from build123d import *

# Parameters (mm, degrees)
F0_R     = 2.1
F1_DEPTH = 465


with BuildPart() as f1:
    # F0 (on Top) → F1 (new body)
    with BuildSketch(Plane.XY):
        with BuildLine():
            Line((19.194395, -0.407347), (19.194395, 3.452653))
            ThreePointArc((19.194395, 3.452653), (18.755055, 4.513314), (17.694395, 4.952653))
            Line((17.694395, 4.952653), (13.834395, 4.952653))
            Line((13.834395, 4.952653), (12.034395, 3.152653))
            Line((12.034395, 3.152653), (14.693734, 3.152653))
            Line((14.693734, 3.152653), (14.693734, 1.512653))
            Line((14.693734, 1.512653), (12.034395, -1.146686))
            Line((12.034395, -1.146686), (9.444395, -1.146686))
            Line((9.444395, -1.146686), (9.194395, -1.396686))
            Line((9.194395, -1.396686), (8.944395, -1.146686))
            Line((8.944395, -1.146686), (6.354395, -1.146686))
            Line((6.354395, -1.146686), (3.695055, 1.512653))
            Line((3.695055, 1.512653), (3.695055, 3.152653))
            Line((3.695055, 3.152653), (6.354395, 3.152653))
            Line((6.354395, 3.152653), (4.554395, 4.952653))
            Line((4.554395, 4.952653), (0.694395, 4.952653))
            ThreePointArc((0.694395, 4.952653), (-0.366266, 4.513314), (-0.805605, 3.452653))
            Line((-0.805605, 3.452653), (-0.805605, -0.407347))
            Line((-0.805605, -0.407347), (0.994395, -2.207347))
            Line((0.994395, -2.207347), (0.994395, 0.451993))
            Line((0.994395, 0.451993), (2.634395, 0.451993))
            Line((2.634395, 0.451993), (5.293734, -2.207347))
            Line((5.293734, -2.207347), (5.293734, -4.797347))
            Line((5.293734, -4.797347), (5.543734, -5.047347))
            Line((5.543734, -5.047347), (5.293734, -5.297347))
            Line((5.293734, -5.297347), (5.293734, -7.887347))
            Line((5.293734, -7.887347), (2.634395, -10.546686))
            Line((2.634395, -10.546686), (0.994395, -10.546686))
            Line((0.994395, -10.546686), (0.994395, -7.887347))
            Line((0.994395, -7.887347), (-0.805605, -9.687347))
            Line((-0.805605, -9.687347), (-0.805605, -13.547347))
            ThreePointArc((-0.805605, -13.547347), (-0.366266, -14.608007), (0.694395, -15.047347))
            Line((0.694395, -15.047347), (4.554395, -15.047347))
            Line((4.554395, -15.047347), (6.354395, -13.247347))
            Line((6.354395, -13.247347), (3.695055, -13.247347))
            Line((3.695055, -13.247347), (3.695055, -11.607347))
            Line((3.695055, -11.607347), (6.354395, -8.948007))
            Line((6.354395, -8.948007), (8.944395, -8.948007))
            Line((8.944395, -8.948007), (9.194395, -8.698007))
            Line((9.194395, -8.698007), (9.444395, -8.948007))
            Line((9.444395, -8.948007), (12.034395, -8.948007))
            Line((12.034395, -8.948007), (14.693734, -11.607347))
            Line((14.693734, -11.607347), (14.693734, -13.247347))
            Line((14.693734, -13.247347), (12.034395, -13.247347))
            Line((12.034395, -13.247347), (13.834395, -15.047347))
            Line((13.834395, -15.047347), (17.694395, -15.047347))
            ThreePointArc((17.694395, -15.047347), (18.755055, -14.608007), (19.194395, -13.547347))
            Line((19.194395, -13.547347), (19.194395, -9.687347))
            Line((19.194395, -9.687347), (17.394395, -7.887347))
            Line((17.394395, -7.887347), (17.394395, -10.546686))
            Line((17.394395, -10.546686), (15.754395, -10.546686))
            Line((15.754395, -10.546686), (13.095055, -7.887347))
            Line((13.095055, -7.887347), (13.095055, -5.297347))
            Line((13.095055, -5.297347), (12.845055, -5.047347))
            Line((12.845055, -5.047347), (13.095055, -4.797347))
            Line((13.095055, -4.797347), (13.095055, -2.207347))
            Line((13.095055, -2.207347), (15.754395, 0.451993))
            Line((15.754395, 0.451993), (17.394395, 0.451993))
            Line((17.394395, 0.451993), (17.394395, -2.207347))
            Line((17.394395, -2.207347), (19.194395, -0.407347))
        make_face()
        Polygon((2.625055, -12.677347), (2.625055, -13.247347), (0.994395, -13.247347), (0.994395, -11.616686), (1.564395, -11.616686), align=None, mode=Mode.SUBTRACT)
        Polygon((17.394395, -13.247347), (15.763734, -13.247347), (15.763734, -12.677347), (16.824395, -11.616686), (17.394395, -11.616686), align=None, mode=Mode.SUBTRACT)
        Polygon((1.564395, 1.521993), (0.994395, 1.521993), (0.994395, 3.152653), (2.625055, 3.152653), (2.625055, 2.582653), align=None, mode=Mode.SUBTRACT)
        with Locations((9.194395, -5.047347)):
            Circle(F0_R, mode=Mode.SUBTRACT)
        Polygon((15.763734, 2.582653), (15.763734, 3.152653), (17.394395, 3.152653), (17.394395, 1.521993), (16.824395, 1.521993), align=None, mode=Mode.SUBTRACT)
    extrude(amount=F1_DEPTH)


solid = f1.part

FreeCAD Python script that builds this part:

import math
import FreeCAD as App
import Part
import Sketcher

V = App.Vector
Q = App.Units.Quantity


def add_polygon(sketch, points):
    """Adds a closed chain of lines whose ends are joined by coincident constraints."""
    first, n = sketch.GeometryCount, len(points)
    for a, b in zip(points, points[1:] + points[:1]):
        sketch.addGeometry(Part.LineSegment(App.Vector(*a, 0), App.Vector(*b, 0)), False)
    for i in range(n):
        sketch.addConstraint(Sketcher.Constraint("Coincident", first + i, 2, first + (i + 1) % n, 1))

doc = App.newDocument("Part")
body = doc.addObject("PartDesign::Body", "Body")

# Sketch on XY plane
sketch1 = doc.addObject("Sketcher::SketchObject", "Sketch")
body.addObject(sketch1)
sketch1.AttachmentSupport = (doc.XY_Plane, [""])
sketch1.MapMode = "FlatFace"
sketch1.addGeometry(Part.LineSegment(V(19.19, -0.41, 0), V(19.19, 3.45, 0)), False)  # 0
sketch1.addGeometry(Part.ArcOfCircle(Part.Circle(V(17.69, 3.45, 0), V(0, 0, 1), 1.5), math.radians(0), math.radians(90)), False)  # 1
sketch1.addGeometry(Part.LineSegment(V(17.69, 4.95, 0), V(13.83, 4.95, 0)), False)  # 2
sketch1.addGeometry(Part.LineSegment(V(13.83, 4.95, 0), V(12.03, 3.15, 0)), False)  # 3
sketch1.addGeometry(Part.LineSegment(V(12.03, 3.15, 0), V(14.69, 3.15, 0)), False)  # 4
sketch1.addGeometry(Part.LineSegment(V(14.69, 3.15, 0), V(14.69, 1.51, 0)), False)  # 5
sketch1.addGeometry(Part.LineSegment(V(14.69, 1.51, 0), V(12.03, -1.15, 0)), False)  # 6
sketch1.addGeometry(Part.LineSegment(V(12.03, -1.15, 0), V(9.44, -1.15, 0)), False)  # 7
sketch1.addGeometry(Part.LineSegment(V(9.44, -1.15, 0), V(9.19, -1.4, 0)), False)  # 8
sketch1.addGeometry(Part.LineSegment(V(9.19, -1.4, 0), V(8.94, -1.15, 0)), False)  # 9
sketch1.addGeometry(Part.LineSegment(V(8.94, -1.15, 0), V(6.35, -1.15, 0)), False)  # 10
sketch1.addGeometry(Part.LineSegment(V(6.35, -1.15, 0), V(3.7, 1.51, 0)), False)  # 11
sketch1.addGeometry(Part.LineSegment(V(3.7, 1.51, 0), V(3.7, 3.15, 0)), False)  # 12
sketch1.addGeometry(Part.LineSegment(V(3.7, 3.15, 0), V(6.35, 3.15, 0)), False)  # 13
sketch1.addGeometry(Part.LineSegment(V(6.35, 3.15, 0), V(4.55, 4.95, 0)), False)  # 14
sketch1.addGeometry(Part.LineSegment(V(4.55, 4.95, 0), V(0.69, 4.95, 0)), False)  # 15
sketch1.addGeometry(Part.ArcOfCircle(Part.Circle(V(0.69, 3.45, 0), V(0, 0, 1), 1.5), math.radians(90), math.radians(180)), False)  # 16
sketch1.addGeometry(Part.LineSegment(V(-0.81, 3.45, 0), V(-0.81, -0.41, 0)), False)  # 17
sketch1.addGeometry(Part.LineSegment(V(-0.81, -0.41, 0), V(0.99, -2.21, 0)), False)  # 18
sketch1.addGeometry(Part.LineSegment(V(0.99, -2.21, 0), V(0.99, 0.45, 0)), False)  # 19
sketch1.addGeometry(Part.LineSegment(V(0.99, 0.45, 0), V(2.63, 0.45, 0)), False)  # 20
sketch1.addGeometry(Part.LineSegment(V(2.63, 0.45, 0), V(5.29, -2.21, 0)), False)  # 21
sketch1.addGeometry(Part.LineSegment(V(5.29, -2.21, 0), V(5.29, -4.8, 0)), False)  # 22
sketch1.addGeometry(Part.LineSegment(V(5.29, -4.8, 0), V(5.54, -5.05, 0)), False)  # 23
sketch1.addGeometry(Part.LineSegment(V(5.54, -5.05, 0), V(5.29, -5.3, 0)), False)  # 24
sketch1.addGeometry(Part.LineSegment(V(5.29, -5.3, 0), V(5.29, -7.89, 0)), False)  # 25
sketch1.addGeometry(Part.LineSegment(V(5.29, -7.89, 0), V(2.63, -10.55, 0)), False)  # 26
sketch1.addGeometry(Part.LineSegment(V(2.63, -10.55, 0), V(0.99, -10.55, 0)), False)  # 27
sketch1.addGeometry(Part.LineSegment(V(0.99, -10.55, 0), V(0.99, -7.89, 0)), False)  # 28
sketch1.addGeometry(Part.LineSegment(V(0.99, -7.89, 0), V(-0.81, -9.69, 0)), False)  # 29
sketch1.addGeometry(Part.LineSegment(V(-0.81, -9.69, 0), V(-0.81, -13.55, 0)), False)  # 30
sketch1.addGeometry(Part.ArcOfCircle(Part.Circle(V(0.69, -13.55, 0), V(0, 0, 1), 1.5), math.radians(180), math.radians(270)), False)  # 31
sketch1.addGeometry(Part.LineSegment(V(0.69, -15.05, 0), V(4.55, -15.05, 0)), False)  # 32
sketch1.addGeometry(Part.LineSegment(V(4.55, -15.05, 0), V(6.35, -13.25, 0)), False)  # 33
sketch1.addGeometry(Part.LineSegment(V(6.35, -13.25, 0), V(3.7, -13.25, 0)), False)  # 34
sketch1.addGeometry(Part.LineSegment(V(3.7, -13.25, 0), V(3.7, -11.61, 0)), False)  # 35
sketch1.addGeometry(Part.LineSegment(V(3.7, -11.61, 0), V(6.35, -8.95, 0)), False)  # 36
sketch1.addGeometry(Part.LineSegment(V(6.35, -8.95, 0), V(8.94, -8.95, 0)), False)  # 37
sketch1.addGeometry(Part.LineSegment(V(8.94, -8.95, 0), V(9.19, -8.7, 0)), False)  # 38
sketch1.addGeometry(Part.LineSegment(V(9.19, -8.7, 0), V(9.44, -8.95, 0)), False)  # 39
sketch1.addGeometry(Part.LineSegment(V(9.44, -8.95, 0), V(12.03, -8.95, 0)), False)  # 40
sketch1.addGeometry(Part.LineSegment(V(12.03, -8.95, 0), V(14.69, -11.61, 0)), False)  # 41
sketch1.addGeometry(Part.LineSegment(V(14.69, -11.61, 0), V(14.69, -13.25, 0)), False)  # 42
sketch1.addGeometry(Part.LineSegment(V(14.69, -13.25, 0), V(12.03, -13.25, 0)), False)  # 43
sketch1.addGeometry(Part.LineSegment(V(12.03, -13.25, 0), V(13.83, -15.05, 0)), False)  # 44
sketch1.addGeometry(Part.LineSegment(V(13.83, -15.05, 0), V(17.69, -15.05, 0)), False)  # 45
sketch1.addGeometry(Part.ArcOfCircle(Part.Circle(V(17.69, -13.55, 0), V(0, 0, 1), 1.5), math.radians(-90), math.radians(0)), False)  # 46
sketch1.addGeometry(Part.LineSegment(V(19.19, -13.55, 0), V(19.19, -9.69, 0)), False)  # 47
sketch1.addGeometry(Part.LineSegment(V(19.19, -9.69, 0), V(17.39, -7.89, 0)), False)  # 48
sketch1.addGeometry(Part.LineSegment(V(17.39, -7.89, 0), V(17.39, -10.55, 0)), False)  # 49
sketch1.addGeometry(Part.LineSegment(V(17.39, -10.55, 0), V(15.75, -10.55, 0)), False)  # 50
sketch1.addGeometry(Part.LineSegment(V(15.75, -10.55, 0), V(13.1, -7.89, 0)), False)  # 51
sketch1.addGeometry(Part.LineSegment(V(13.1, -7.89, 0), V(13.1, -5.3, 0)), False)  # 52
sketch1.addGeometry(Part.LineSegment(V(13.1, -5.3, 0), V(12.85, -5.05, 0)), False)  # 53
sketch1.addGeometry(Part.LineSegment(V(12.85, -5.05, 0), V(13.1, -4.8, 0)), False)  # 54
sketch1.addGeometry(Part.LineSegment(V(13.1, -4.8, 0), V(13.1, -2.21, 0)), False)  # 55
sketch1.addGeometry(Part.LineSegment(V(13.1, -2.21, 0), V(15.75, 0.45, 0)), False)  # 56
sketch1.addGeometry(Part.LineSegment(V(15.75, 0.45, 0), V(17.39, 0.45, 0)), False)  # 57
sketch1.addGeometry(Part.LineSegment(V(17.39, 0.45, 0), V(17.39, -2.21, 0)), False)  # 58
sketch1.addGeometry(Part.LineSegment(V(17.39, -2.21, 0), V(19.19, -0.41, 0)), False)  # 59
add_polygon(sketch1, [(1.56, -11.62), (2.63, -12.68), (2.63, -13.25), (0.99, -13.25), (0.99, -11.62)])  # lines 60-64
add_polygon(sketch1, [(17.39, -11.62), (17.39, -13.25), (15.76, -13.25), (15.76, -12.68), (16.82, -11.62)])  # lines 65-69
add_polygon(sketch1, [(2.63, 2.58), (1.56, 1.52), (0.99, 1.52), (0.99, 3.15), (2.63, 3.15)])  # lines 70-74
sketch1.addGeometry(Part.Circle(V(9.19, -5.05, 0), V(0, 0, 1), 2.1), False)  # 75
add_polygon(sketch1, [(16.82, 1.52), (15.76, 2.58), (15.76, 3.15), (17.39, 3.15), (17.39, 1.52)])  # lines 76-80
sketch1.addConstraint(Sketcher.Constraint("Tangent", 0, 2, 1, 1))
sketch1.addConstraint(Sketcher.Constraint("Tangent", 1, 2, 2, 1))
sketch1.addConstraint(Sketcher.Constraint("Coincident", 2, 2, 3, 1))
sketch1.addConstraint(Sketcher.Constraint("Coincident", 3, 2, 4, 1))
sketch1.addConstraint(Sketcher.Constraint("Coincident", 4, 2, 5, 1))
sketch1.addConstraint(Sketcher.Constraint("Coincident", 5, 2, 6, 1))
sketch1.addConstraint(Sketcher.Constraint("Coincident", 6, 2, 7, 1))
sketch1.addConstraint(Sketcher.Constraint("Coincident", 7, 2, 8, 1))
sketch1.addConstraint(Sketcher.Constraint("Coincident", 8, 2, 9, 1))
sketch1.addConstraint(Sketcher.Constraint("Coincident", 9, 2, 10, 1))
sketch1.addConstraint(Sketcher.Constraint("Coincident", 10, 2, 11, 1))
sketch1.addConstraint(Sketcher.Constraint("Coincident", 11, 2, 12, 1))
sketch1.addConstraint(Sketcher.Constraint("Coincident", 12, 2, 13, 1))
sketch1.addConstraint(Sketcher.Constraint("Coincident", 13, 2, 14, 1))
sketch1.addConstraint(Sketcher.Constraint("Coincident", 14, 2, 15, 1))
sketch1.addConstraint(Sketcher.Constraint("Tangent", 15, 2, 16, 1))
sketch1.addConstraint(Sketcher.Constraint("Tangent", 16, 2, 17, 1))
sketch1.addConstraint(Sketcher.Constraint("Coincident", 17, 2, 18, 1))
sketch1.addConstraint(Sketcher.Constraint("Coincident", 18, 2, 19, 1))
sketch1.addConstraint(Sketcher.Constraint("Coincident", 19, 2, 20, 1))
sketch1.addConstraint(Sketcher.Constraint("Coincident", 20, 2, 21, 1))
sketch1.addConstraint(Sketcher.Constraint("Coincident", 21, 2, 22, 1))
sketch1.addConstraint(Sketcher.Constraint("Coincident", 22, 2, 23, 1))
sketch1.addConstraint(Sketcher.Constraint("Coincident", 23, 2, 24, 1))
sketch1.addConstraint(Sketcher.Constraint("Coincident", 24, 2, 25, 1))
sketch1.addConstraint(Sketcher.Constraint("Coincident", 25, 2, 26, 1))
sketch1.addConstraint(Sketcher.Constraint("Coincident", 26, 2, 27, 1))
sketch1.addConstraint(Sketcher.Constraint("Coincident", 27, 2, 28, 1))
sketch1.addConstraint(Sketcher.Constraint("Coincident", 28, 2, 29, 1))
sketch1.addConstraint(Sketcher.Constraint("Coincident", 29, 2, 30, 1))
sketch1.addConstraint(Sketcher.Constraint("Tangent", 30, 2, 31, 1))
sketch1.addConstraint(Sketcher.Constraint("Tangent", 31, 2, 32, 1))
sketch1.addConstraint(Sketcher.Constraint("Coincident", 32, 2, 33, 1))
sketch1.addConstraint(Sketcher.Constraint("Coincident", 33, 2, 34, 1))
sketch1.addConstraint(Sketcher.Constraint("Coincident", 34, 2, 35, 1))
sketch1.addConstraint(Sketcher.Constraint("Coincident", 35, 2, 36, 1))
sketch1.addConstraint(Sketcher.Constraint("Coincident", 36, 2, 37, 1))
sketch1.addConstraint(Sketcher.Constraint("Coincident", 37, 2, 38, 1))
sketch1.addConstraint(Sketcher.Constraint("Coincident", 38, 2, 39, 1))
sketch1.addConstraint(Sketcher.Constraint("Coincident", 39, 2, 40, 1))
sketch1.addConstraint(Sketcher.Constraint("Coincident", 40, 2, 41, 1))
sketch1.addConstraint(Sketcher.Constraint("Coincident", 41, 2, 42, 1))
sketch1.addConstraint(Sketcher.Constraint("Coincident", 42, 2, 43, 1))
sketch1.addConstraint(Sketcher.Constraint("Coincident", 43, 2, 44, 1))
sketch1.addConstraint(Sketcher.Constraint("Coincident", 44, 2, 45, 1))
sketch1.addConstraint(Sketcher.Constraint("Tangent", 45, 2, 46, 1))
sketch1.addConstraint(Sketcher.Constraint("Tangent", 46, 2, 47, 1))
sketch1.addConstraint(Sketcher.Constraint("Coincident", 47, 2, 48, 1))
sketch1.addConstraint(Sketcher.Constraint("Coincident", 48, 2, 49, 1))
sketch1.addConstraint(Sketcher.Constraint("Coincident", 49, 2, 50, 1))
sketch1.addConstraint(Sketcher.Constraint("Coincident", 50, 2, 51, 1))
sketch1.addConstraint(Sketcher.Constraint("Coincident", 51, 2, 52, 1))
sketch1.addConstraint(Sketcher.Constraint("Coincident", 52, 2, 53, 1))
sketch1.addConstraint(Sketcher.Constraint("Coincident", 53, 2, 54, 1))
sketch1.addConstraint(Sketcher.Constraint("Coincident", 54, 2, 55, 1))
sketch1.addConstraint(Sketcher.Constraint("Coincident", 55, 2, 56, 1))
sketch1.addConstraint(Sketcher.Constraint("Coincident", 56, 2, 57, 1))
sketch1.addConstraint(Sketcher.Constraint("Coincident", 57, 2, 58, 1))
sketch1.addConstraint(Sketcher.Constraint("Coincident", 58, 2, 59, 1))
sketch1.addConstraint(Sketcher.Constraint("Coincident", 59, 2, 0, 1))
sketch1.addConstraint(Sketcher.Constraint("Vertical", 0))
sketch1.addConstraint(Sketcher.Constraint("Horizontal", 2))
sketch1.addConstraint(Sketcher.Constraint("Horizontal", 4))
sketch1.addConstraint(Sketcher.Constraint("Vertical", 5))
sketch1.addConstraint(Sketcher.Constraint("Horizontal", 7))
sketch1.addConstraint(Sketcher.Constraint("Horizontal", 10))
sketch1.addConstraint(Sketcher.Constraint("Vertical", 12))
sketch1.addConstraint(Sketcher.Constraint("Horizontal", 13))
sketch1.addConstraint(Sketcher.Constraint("Horizontal", 15))
sketch1.addConstraint(Sketcher.Constraint("Vertical", 17))
sketch1.addConstraint(Sketcher.Constraint("Vertical", 19))
sketch1.addConstraint(Sketcher.Constraint("Horizontal", 20))
sketch1.addConstraint(Sketcher.Constraint("Vertical", 22))
sketch1.addConstraint(Sketcher.Constraint("Vertical", 25))
sketch1.addConstraint(Sketcher.Constraint("Horizontal", 27))
sketch1.addConstraint(Sketcher.Constraint("Vertical", 28))
sketch1.addConstraint(Sketcher.Constraint("Vertical", 30))
sketch1.addConstraint(Sketcher.Constraint("Horizontal", 32))
sketch1.addConstraint(Sketcher.Constraint("Horizontal", 34))
sketch1.addConstraint(Sketcher.Constraint("Vertical", 35))
sketch1.addConstraint(Sketcher.Constraint("Horizontal", 37))
sketch1.addConstraint(Sketcher.Constraint("Horizontal", 40))
sketch1.addConstraint(Sketcher.Constraint("Vertical", 42))
sketch1.addConstraint(Sketcher.Constraint("Horizontal", 43))
sketch1.addConstraint(Sketcher.Constraint("Horizontal", 45))
sketch1.addConstraint(Sketcher.Constraint("Vertical", 47))
sketch1.addConstraint(Sketcher.Constraint("Vertical", 49))
sketch1.addConstraint(Sketcher.Constraint("Horizontal", 50))
sketch1.addConstraint(Sketcher.Constraint("Vertical", 52))
sketch1.addConstraint(Sketcher.Constraint("Vertical", 55))
sketch1.addConstraint(Sketcher.Constraint("Horizontal", 57))
sketch1.addConstraint(Sketcher.Constraint("Vertical", 58))
sketch1.addConstraint(Sketcher.Constraint("Vertical", 61))
sketch1.addConstraint(Sketcher.Constraint("Horizontal", 62))
sketch1.addConstraint(Sketcher.Constraint("Vertical", 63))
sketch1.addConstraint(Sketcher.Constraint("Horizontal", 64))
sketch1.addConstraint(Sketcher.Constraint("Vertical", 65))
sketch1.addConstraint(Sketcher.Constraint("Horizontal", 66))
sketch1.addConstraint(Sketcher.Constraint("Vertical", 67))
sketch1.addConstraint(Sketcher.Constraint("Horizontal", 69))
sketch1.addConstraint(Sketcher.Constraint("Horizontal", 71))
sketch1.addConstraint(Sketcher.Constraint("Vertical", 72))
sketch1.addConstraint(Sketcher.Constraint("Horizontal", 73))
sketch1.addConstraint(Sketcher.Constraint("Vertical", 74))
sketch1.addConstraint(Sketcher.Constraint("Vertical", 77))
sketch1.addConstraint(Sketcher.Constraint("Horizontal", 78))
sketch1.addConstraint(Sketcher.Constraint("Vertical", 79))
sketch1.addConstraint(Sketcher.Constraint("Horizontal", 80))
sketch1.addConstraint(Sketcher.Constraint("Equal", 1, 16))
sketch1.addConstraint(Sketcher.Constraint("Equal", 16, 31))
sketch1.addConstraint(Sketcher.Constraint("Equal", 31, 46))
sketch1.addConstraint(Sketcher.Constraint("Parallel", 3, 6))
sketch1.addConstraint(Sketcher.Constraint("Parallel", 6, 8))
sketch1.addConstraint(Sketcher.Constraint("Perpendicular", 8, 9))
sketch1.addConstraint(Sketcher.Constraint("Parallel", 9, 11))
sketch1.addConstraint(Sketcher.Constraint("Parallel", 11, 14))
sketch1.addConstraint(Sketcher.Constraint("Parallel", 14, 18))
sketch1.addConstraint(Sketcher.Constraint("Parallel", 18, 21))
sketch1.addConstraint(Sketcher.Constraint("Parallel", 21, 23))
sketch1.addConstraint(Sketcher.Constraint("Perpendicular", 23, 24))
sketch1.addConstraint(Sketcher.Constraint("Parallel", 24, 26))
sketch1.addConstraint(Sketcher.Constraint("Parallel", 26, 29))
sketch1.addConstraint(Sketcher.Constraint("Parallel", 29, 33))
sketch1.addConstraint(Sketcher.Constraint("Parallel", 33, 36))
sketch1.addConstraint(Sketcher.Constraint("Parallel", 36, 38))
sketch1.addConstraint(Sketcher.Constraint("Perpendicular", 38, 39))
sketch1.addConstraint(Sketcher.Constraint("Parallel", 39, 41))
sketch1.addConstraint(Sketcher.Constraint("Parallel", 41, 44))
sketch1.addConstraint(Sketcher.Constraint("Parallel", 44, 48))
sketch1.addConstraint(Sketcher.Constraint("Parallel", 48, 51))
sketch1.addConstraint(Sketcher.Constraint("Parallel", 51, 53))
sketch1.addConstraint(Sketcher.Constraint("Perpendicular", 53, 54))
sketch1.addConstraint(Sketcher.Constraint("Parallel", 54, 56))
sketch1.addConstraint(Sketcher.Constraint("Parallel", 56, 59))
sketch1.addConstraint(Sketcher.Constraint("Perpendicular", 59, 60))
sketch1.addConstraint(Sketcher.Constraint("Perpendicular", 60, 68))
sketch1.addConstraint(Sketcher.Constraint("Parallel", 68, 70))
sketch1.addConstraint(Sketcher.Constraint("Perpendicular", 70, 76))
sketch1.addConstraint(Sketcher.Constraint("Horizontal", 1, 3, 16, 3))
sketch1.addConstraint(Sketcher.Constraint("Horizontal", 31, 3, 46, 3))
sketch1.addConstraint(Sketcher.Constraint("Horizontal", 7, 2, 9, 2))
sketch1.addConstraint(Sketcher.Constraint("Horizontal", 5, 2, 11, 2))
sketch1.addConstraint(Sketcher.Constraint("Horizontal", 4, 2, 12, 2))
sketch1.addConstraint(Sketcher.Constraint("Horizontal", 18, 2, 21, 2))
sketch1.addConstraint(Sketcher.Constraint("Horizontal", 75, 3, 23, 2))
sketch1.addConstraint(Sketcher.Constraint("Horizontal", 25, 2, 28, 2))
sketch1.addConstraint(Sketcher.Constraint("Horizontal", 37, 2, 39, 2))
sketch1.addConstraint(Sketcher.Constraint("Horizontal", 35, 2, 41, 2))
sketch1.addConstraint(Sketcher.Constraint("Horizontal", 34, 2, 42, 2))
sketch1.addConstraint(Sketcher.Constraint("Horizontal", 29, 2, 47, 2))
sketch1.addConstraint(Sketcher.Constraint("Horizontal", 28, 2, 48, 2))
sketch1.addConstraint(Sketcher.Constraint("Horizontal", 27, 2, 49, 2))
sketch1.addConstraint(Sketcher.Constraint("Horizontal", 48, 2, 51, 2))
sketch1.addConstraint(Sketcher.Constraint("Horizontal", 24, 2, 52, 2))
sketch1.addConstraint(Sketcher.Constraint("Horizontal", 23, 2, 53, 2))
sketch1.addConstraint(Sketcher.Constraint("Horizontal", 22, 2, 54, 2))
sketch1.addConstraint(Sketcher.Constraint("Horizontal", 21, 2, 55, 2))
sketch1.addConstraint(Sketcher.Constraint("Horizontal", 20, 2, 56, 2))
sketch1.addConstraint(Sketcher.Constraint("Horizontal", 55, 2, 58, 2))
sketch1.addConstraint(Sketcher.Constraint("Horizontal", 17, 2, 59, 2))
sketch1.addConstraint(Sketcher.Constraint("Horizontal", 43, 2, 61, 2))
sketch1.addConstraint(Sketcher.Constraint("Horizontal", 62, 2, 65, 2))
sketch1.addConstraint(Sketcher.Constraint("Horizontal", 60, 2, 67, 2))
sketch1.addConstraint(Sketcher.Constraint("Horizontal", 64, 2, 68, 2))
sketch1.addConstraint(Sketcher.Constraint("Horizontal", 13, 2, 72, 2))
sketch1.addConstraint(Sketcher.Constraint("Horizontal", 74, 2, 76, 2))
sketch1.addConstraint(Sketcher.Constraint("Horizontal", 73, 2, 77, 2))
sketch1.addConstraint(Sketcher.Constraint("Horizontal", 71, 2, 79, 2))
sketch1.addConstraint(Sketcher.Constraint("Vertical", 16, 3, 31, 3))
sketch1.addConstraint(Sketcher.Constraint("Vertical", 1, 3, 46, 3))
sketch1.addConstraint(Sketcher.Constraint("Vertical", 3, 2, 6, 2))
sketch1.addConstraint(Sketcher.Constraint("Vertical", 75, 3, 8, 2))
sketch1.addConstraint(Sketcher.Constraint("Vertical", 10, 2, 13, 2))
sketch1.addConstraint(Sketcher.Constraint("Vertical", 22, 2, 24, 2))
sketch1.addConstraint(Sketcher.Constraint("Vertical", 20, 2, 26, 2))
sketch1.addConstraint(Sketcher.Constraint("Vertical", 19, 2, 27, 2))
sketch1.addConstraint(Sketcher.Constraint("Vertical", 14, 2, 32, 2))
sketch1.addConstraint(Sketcher.Constraint("Vertical", 13, 2, 33, 2))
sketch1.addConstraint(Sketcher.Constraint("Vertical", 12, 2, 34, 2))
sketch1.addConstraint(Sketcher.Constraint("Vertical", 33, 2, 36, 2))
sketch1.addConstraint(Sketcher.Constraint("Vertical", 9, 2, 37, 2))
sketch1.addConstraint(Sketcher.Constraint("Vertical", 8, 2, 38, 2))
sketch1.addConstraint(Sketcher.Constraint("Vertical", 7, 2, 39, 2))
sketch1.addConstraint(Sketcher.Constraint("Vertical", 6, 2, 40, 2))
sketch1.addConstraint(Sketcher.Constraint("Vertical", 40, 2, 43, 2))
sketch1.addConstraint(Sketcher.Constraint("Vertical", 28, 2, 62, 2))
sketch1.addConstraint(Sketcher.Constraint("Vertical", 58, 2, 65, 2))
sketch1.addConstraint(Sketcher.Constraint("Vertical", 64, 2, 70, 2))
sketch1.addConstraint(Sketcher.Constraint("Vertical", 63, 2, 71, 2))
sketch1.addConstraint(Sketcher.Constraint("Vertical", 61, 2, 73, 2))
sketch1.addConstraint(Sketcher.Constraint("Vertical", 67, 2, 76, 2))
sketch1.addConstraint(Sketcher.Constraint("Vertical", 69, 2, 78, 2))
sketch1.addConstraint(Sketcher.Constraint("Equal", 7, 10))
sketch1.addConstraint(Sketcher.Constraint("Equal", 2, 15))
sketch1.addConstraint(Sketcher.Constraint("Equal", 27, 50))
sketch1.addConstraint(Sketcher.Constraint("Equal", 62, 66))
sketch1.addConstraint(Sketcher.Constraint("Equal", 45, 0))
sketch1.addConstraint(Sketcher.Constraint("Equal", 57, 5))
sketch1.addConstraint(Sketcher.Constraint("Equal", 43, 19))
sketch1.addConstraint(Sketcher.Constraint("Equal", 40, 22))
sketch1.addConstraint(Sketcher.Constraint("Equal", 22, 25))
sketch1.addConstraint(Sketcher.Constraint("Equal", 17, 30))
sketch1.addConstraint(Sketcher.Constraint("Equal", 12, 35))
sketch1.addConstraint(Sketcher.Constraint("Equal", 80, 61))
sketch1.addConstraint(Sketcher.Constraint("Equal", 65, 72))
sketch1.addConstraint(Sketcher.Constraint("Equal", 14, 18))
sketch1.addConstraint(Sketcher.Constraint("Equal", 9, 23))
sketch1.addConstraint(Sketcher.Constraint("Diameter", 75, Q("4.2 mm")))
sketch1.addConstraint(Sketcher.Constraint("Radius", 1, Q("1.499999 mm")))
sketch1.addConstraint(Sketcher.Constraint("Distance", 60, Q("1.5 mm")))
sketch1.addConstraint(Sketcher.Constraint("DistanceX", 2, 2, 2, 1, Q("3.86 mm")))
sketch1.addConstraint(Sketcher.Constraint("DistanceX", 7, 2, 7, 1, Q("2.59 mm")))
sketch1.addConstraint(Sketcher.Constraint("DistanceX", 20, 1, 20, 2, Q("1.64 mm")))
sketch1.addConstraint(Sketcher.Constraint("DistanceX", 64, 1, 64, 2, Q("0.57 mm")))
sketch1.addConstraint(Sketcher.Constraint("DistanceX", 4, 1, 4, 2, Q("2.659339 mm")))
sketch1.addConstraint(Sketcher.Constraint("DistanceY", 31, 3, -1, 1, Q("13.547348 mm")))
sketch1.addConstraint(Sketcher.Constraint("Distance", 3, Q("2.545584 mm")))
sketch1.addConstraint(Sketcher.Constraint("Distance", 8, Q("0.353553 mm")))
sketch1.addConstraint(Sketcher.Constraint("DistanceX", -1, 1, 1, 3, Q("17.694396 mm")))
pad1 = doc.addObject("PartDesign::Pad", "Pad")
body.addObject(pad1)
pad1.Profile = sketch1
pad1.Length = 465

doc.recompute()
